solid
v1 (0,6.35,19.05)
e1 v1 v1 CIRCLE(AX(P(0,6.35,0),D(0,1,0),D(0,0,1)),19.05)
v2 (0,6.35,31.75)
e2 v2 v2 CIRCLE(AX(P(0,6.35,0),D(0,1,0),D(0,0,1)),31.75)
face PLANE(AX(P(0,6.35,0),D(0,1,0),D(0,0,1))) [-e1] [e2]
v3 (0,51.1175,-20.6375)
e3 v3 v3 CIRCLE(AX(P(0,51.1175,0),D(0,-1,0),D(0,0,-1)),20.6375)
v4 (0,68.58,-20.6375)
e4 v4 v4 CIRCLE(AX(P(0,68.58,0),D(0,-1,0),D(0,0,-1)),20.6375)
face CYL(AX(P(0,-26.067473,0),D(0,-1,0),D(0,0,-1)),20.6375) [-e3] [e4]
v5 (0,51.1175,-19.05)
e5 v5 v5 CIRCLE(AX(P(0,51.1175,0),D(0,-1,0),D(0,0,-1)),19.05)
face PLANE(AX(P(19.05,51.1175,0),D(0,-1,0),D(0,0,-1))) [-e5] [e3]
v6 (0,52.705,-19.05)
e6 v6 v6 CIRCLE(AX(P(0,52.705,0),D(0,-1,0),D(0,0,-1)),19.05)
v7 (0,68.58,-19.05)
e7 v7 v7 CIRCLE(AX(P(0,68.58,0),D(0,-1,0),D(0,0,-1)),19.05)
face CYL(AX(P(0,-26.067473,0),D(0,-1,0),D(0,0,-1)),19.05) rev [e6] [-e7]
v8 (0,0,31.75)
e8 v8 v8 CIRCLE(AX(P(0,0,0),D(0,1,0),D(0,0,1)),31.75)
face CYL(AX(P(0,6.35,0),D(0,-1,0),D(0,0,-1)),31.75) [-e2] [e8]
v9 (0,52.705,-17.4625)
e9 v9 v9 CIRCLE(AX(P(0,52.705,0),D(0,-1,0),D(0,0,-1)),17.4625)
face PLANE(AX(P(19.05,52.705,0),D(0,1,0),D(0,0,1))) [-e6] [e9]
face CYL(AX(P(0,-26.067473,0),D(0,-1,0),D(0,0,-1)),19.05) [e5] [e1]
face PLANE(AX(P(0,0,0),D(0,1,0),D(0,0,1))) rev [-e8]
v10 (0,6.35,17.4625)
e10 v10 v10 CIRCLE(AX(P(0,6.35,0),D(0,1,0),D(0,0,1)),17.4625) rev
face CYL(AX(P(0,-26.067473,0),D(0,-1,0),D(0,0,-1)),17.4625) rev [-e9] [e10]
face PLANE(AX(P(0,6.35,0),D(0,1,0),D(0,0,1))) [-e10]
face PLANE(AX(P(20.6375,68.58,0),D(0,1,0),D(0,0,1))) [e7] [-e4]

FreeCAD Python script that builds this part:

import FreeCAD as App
import Part
import Sketcher
from FreeCAD import Vector
Q = App.Units.Quantity

doc = App.newDocument("Part")
body = doc.addObject("PartDesign::Body", "Body")

# Sketch on XZ plane
sketch1 = doc.addObject("Sketcher::SketchObject", "Sketch")
body.addObject(sketch1)
sketch1.AttachmentSupport = (doc.XZ_Plane, [""])
sketch1.MapMode = "FlatFace"
sketch1.addGeometry(Part.Circle(Vector(0, 0, 0), Vector(0, 0, 1), 32), False)
sketch1.addConstraint([
    Sketcher.Constraint("Coincident", 0, 3, -1, 1),
    Sketcher.Constraint("Diameter", 0, Q("2.5 in")),
])
pad1 = doc.addObject("PartDesign::Pad", "Pad")
body.addObject(pad1)
pad1.Profile = sketch1
pad1.Length = Q("0.25 in")
pad1.Reversed = True

# Sketch on XY plane
sketch2 = doc.addObject("Sketcher::SketchObject", "Sketch001")
body.addObject(sketch2)
sketch2.AttachmentSupport = (doc.XY_Plane, [""])
sketch2.MapMode = "FlatFace"
sketch2.addGeometry([
    Part.LineSegment(Vector(19.1, 6.3, 0), Vector(19.1, 51.1, 0)),  # 0
    Part.LineSegment(Vector(19.1, 51.1, 0), Vector(20.6, 51.1, 0)),  # 1
    Part.LineSegment(Vector(20.6, 51.1, 0), Vector(20.6, 68.6, 0)),  # 2
    Part.LineSegment(Vector(20.6, 68.6, 0), Vector(19.1, 68.6, 0)),  # 3
    Part.LineSegment(Vector(19.1, 68.6, 0), Vector(19.1, 52.7, 0)),  # 4
    Part.LineSegment(Vector(19.1, 52.7, 0), Vector(17.5, 52.7, 0)),  # 5
    Part.LineSegment(Vector(17.5, 52.7, 0), Vector(17.5, 6.3, 0)),  # 6
    Part.LineSegment(Vector(17.5, 6.3, 0), Vector(19.1, 6.3, 0)),  # 7
], False)
sketch2.addConstraint([
    Sketcher.Constraint("Coincident", 0, 2, 1, 1),
    Sketcher.Constraint("Coincident", 1, 2, 2, 1),
    Sketcher.Constraint("Coincident", 2, 2, 3, 1),
    Sketcher.Constraint("Coincident", 3, 2, 4, 1),
    Sketcher.Constraint("Coincident", 4, 2, 5, 1),
    Sketcher.Constraint("Coincident", 5, 2, 6, 1),
    Sketcher.Constraint("Coincident", 6, 2, 7, 1),
    Sketcher.Constraint("Coincident", 7, 2, 0, 1),
    Sketcher.Constraint("Vertical", 0),
    Sketcher.Constraint("Horizontal", 1),
    Sketcher.Constraint("Vertical", 2),
    Sketcher.Constraint("Horizontal", 3),
    Sketcher.Constraint("Vertical", 4),
    Sketcher.Constraint("Horizontal", 5),
    Sketcher.Constraint("Vertical", 6),
    Sketcher.Constraint("Horizontal", 7),
    Sketcher.Constraint("Vertical", 0, 2, 3, 2),
    Sketcher.Constraint("Equal", 3, 5),
    Sketcher.Constraint("DistanceY", -1, 1, 2, 2, Q("2.7 in")),
    Sketcher.Constraint("DistanceX", 1, 1, 1, 2, Q("0.0625 in")),
    Sketcher.Constraint("DistanceY", 2, 1, 2, 2, Q("0.6875 in")),
    Sketcher.Constraint("DistanceY", 4, 2, 4, 1, Q("0.625 in")),
    Sketcher.Constraint("DistanceY", 6, 2, 6, 1, Q("1.825 in")),
    Sketcher.Constraint("DistanceX", -1, 1, 0, 2, Q("0.75 in")),
])
revolution = doc.addObject("PartDesign::Revolution", "Revolution")
body.addObject(revolution)
revolution.Profile = sketch2
revolution.ReferenceAxis = (sketch2, ["V_Axis"])
revolution.Angle = 360

doc.recompute()
